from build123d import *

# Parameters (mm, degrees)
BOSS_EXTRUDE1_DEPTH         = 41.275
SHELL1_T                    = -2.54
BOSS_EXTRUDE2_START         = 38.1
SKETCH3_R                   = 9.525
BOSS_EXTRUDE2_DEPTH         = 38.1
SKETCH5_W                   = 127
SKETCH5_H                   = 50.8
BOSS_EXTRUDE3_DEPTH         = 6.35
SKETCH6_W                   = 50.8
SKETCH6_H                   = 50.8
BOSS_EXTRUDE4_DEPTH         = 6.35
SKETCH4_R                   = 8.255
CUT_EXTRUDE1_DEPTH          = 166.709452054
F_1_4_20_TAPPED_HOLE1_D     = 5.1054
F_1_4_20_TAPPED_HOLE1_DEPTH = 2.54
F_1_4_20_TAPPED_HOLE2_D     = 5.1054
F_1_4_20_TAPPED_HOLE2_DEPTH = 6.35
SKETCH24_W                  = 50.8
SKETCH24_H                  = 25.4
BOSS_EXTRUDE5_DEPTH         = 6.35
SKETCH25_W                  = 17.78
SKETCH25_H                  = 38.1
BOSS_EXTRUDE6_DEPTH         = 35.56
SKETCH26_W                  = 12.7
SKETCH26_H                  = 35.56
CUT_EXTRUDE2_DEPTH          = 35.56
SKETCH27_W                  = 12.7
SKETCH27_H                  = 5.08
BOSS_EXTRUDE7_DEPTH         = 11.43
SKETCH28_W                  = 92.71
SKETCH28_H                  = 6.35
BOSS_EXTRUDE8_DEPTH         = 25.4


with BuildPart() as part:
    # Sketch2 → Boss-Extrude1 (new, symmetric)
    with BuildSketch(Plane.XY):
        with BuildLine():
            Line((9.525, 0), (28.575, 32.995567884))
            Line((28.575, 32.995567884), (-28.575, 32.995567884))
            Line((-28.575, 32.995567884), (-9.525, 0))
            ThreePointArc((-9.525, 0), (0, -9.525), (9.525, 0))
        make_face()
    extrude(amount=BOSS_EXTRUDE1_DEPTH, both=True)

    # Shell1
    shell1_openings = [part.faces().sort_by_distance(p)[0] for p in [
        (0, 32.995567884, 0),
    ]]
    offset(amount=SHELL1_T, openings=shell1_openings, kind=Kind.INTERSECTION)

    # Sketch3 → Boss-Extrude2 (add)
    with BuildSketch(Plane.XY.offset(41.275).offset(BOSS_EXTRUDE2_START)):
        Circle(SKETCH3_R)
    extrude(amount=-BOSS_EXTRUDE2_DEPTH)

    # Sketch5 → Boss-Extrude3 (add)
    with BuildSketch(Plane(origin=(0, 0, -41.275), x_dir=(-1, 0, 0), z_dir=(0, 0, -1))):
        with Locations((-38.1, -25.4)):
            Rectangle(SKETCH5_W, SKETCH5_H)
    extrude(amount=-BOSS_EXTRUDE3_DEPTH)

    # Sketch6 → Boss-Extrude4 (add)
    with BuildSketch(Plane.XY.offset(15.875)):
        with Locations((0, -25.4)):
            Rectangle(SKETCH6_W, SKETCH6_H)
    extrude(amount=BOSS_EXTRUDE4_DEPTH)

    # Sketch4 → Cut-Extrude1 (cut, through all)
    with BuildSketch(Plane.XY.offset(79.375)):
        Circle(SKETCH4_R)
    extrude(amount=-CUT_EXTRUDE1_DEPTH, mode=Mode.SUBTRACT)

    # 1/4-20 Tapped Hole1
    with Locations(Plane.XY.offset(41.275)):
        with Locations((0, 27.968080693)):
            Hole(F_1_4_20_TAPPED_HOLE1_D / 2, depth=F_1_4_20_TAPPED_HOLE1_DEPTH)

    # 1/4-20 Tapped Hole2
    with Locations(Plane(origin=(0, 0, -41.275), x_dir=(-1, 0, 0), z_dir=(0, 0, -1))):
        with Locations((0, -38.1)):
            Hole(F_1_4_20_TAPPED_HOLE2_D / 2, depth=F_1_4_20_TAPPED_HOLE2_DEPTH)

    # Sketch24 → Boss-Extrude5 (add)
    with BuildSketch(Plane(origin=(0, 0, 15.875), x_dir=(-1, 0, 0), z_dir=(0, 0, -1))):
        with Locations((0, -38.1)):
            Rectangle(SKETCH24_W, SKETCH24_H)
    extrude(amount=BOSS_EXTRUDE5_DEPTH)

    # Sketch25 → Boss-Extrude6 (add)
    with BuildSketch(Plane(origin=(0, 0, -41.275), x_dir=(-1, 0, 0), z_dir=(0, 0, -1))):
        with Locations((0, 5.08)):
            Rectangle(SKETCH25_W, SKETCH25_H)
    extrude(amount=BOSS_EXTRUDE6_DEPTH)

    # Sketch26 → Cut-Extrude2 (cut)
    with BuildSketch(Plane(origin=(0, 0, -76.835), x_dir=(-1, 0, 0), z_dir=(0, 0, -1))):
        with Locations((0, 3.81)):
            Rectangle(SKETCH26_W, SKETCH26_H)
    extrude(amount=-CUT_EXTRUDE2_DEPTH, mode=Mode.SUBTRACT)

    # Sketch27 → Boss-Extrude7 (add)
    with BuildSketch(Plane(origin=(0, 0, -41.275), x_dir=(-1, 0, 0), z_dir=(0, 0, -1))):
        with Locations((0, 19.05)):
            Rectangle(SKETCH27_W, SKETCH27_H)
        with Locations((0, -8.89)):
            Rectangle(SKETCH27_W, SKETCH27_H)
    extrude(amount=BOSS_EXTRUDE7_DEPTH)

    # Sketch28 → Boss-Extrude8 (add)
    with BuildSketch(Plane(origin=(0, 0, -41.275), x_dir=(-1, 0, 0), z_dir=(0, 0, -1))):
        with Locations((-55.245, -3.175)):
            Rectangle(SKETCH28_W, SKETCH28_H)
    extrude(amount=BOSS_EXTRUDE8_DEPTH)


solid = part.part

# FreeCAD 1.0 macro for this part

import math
import FreeCAD as App
import Part
import Sketcher
Q = App.Units.Quantity


def faces_at(feature, points):
    """Names of the faces that lie closest to the given points."""
    faces = feature.Shape.Faces
    near = lambda p: min(range(len(faces)), key=lambda i: faces[i].distToShape(Part.Vertex(*p))[0])
    return sorted({f"Face{near(p) + 1}" for p in points})


def add_polygon(sketch, points):
    """Adds a closed chain of lines whose ends are joined by coincident constraints."""
    first, n = sketch.GeometryCount, len(points)
    for a, b in zip(points, points[1:] + points[:1]):
        sketch.addGeometry(Part.LineSegment(App.Vector(*a, 0), App.Vector(*b, 0)), False)
    for i in range(n):
        sketch.addConstraint(Sketcher.Constraint("Coincident", first + i, 2, first + (i + 1) % n, 1))

doc = App.newDocument("Part")
body = doc.addObject("PartDesign::Body", "Body")

# Sketch on XY plane
sketch1 = body.newObject("Sketcher::SketchObject", "Sketch")
sketch1.AttachmentSupport = (doc.getObject("XY_Plane"), [""])
sketch1.MapMode = "FlatFace"
sketch1.addGeometry(Part.LineSegment(App.Vector(9.525, 0, 0), App.Vector(28.575, 32.995568, 0)), False)
sketch1.addGeometry(Part.LineSegment(App.Vector(28.575, 32.995568, 0), App.Vector(-28.575, 32.995568, 0)), False)
sketch1.addGeometry(Part.LineSegment(App.Vector(-28.575, 32.995568, 0), App.Vector(-9.525, 0, 0)), False)
sketch1.addGeometry(Part.ArcOfCircle(Part.Circle(App.Vector(0, 0, 0), App.Vector(0, 0, 1), 9.525), math.radians(180), math.radians(360)), False)
sketch1.addConstraint(Sketcher.Constraint("Coincident", 0, 2, 1, 1))
sketch1.addConstraint(Sketcher.Constraint("Coincident", 1, 2, 2, 1))
sketch1.addConstraint(Sketcher.Constraint("Coincident", 2, 2, 3, 1))
sketch1.addConstraint(Sketcher.Constraint("Coincident", 3, 2, 0, 1))
sketch1.addConstraint(Sketcher.Constraint("Horizontal", 1))
sketch1.addConstraint(Sketcher.Constraint("Coincident", 3, 3, -1, 1))
sketch1.addConstraint(Sketcher.Constraint("PointOnObject", 2, 2, -1))
sketch1.addConstraint(Sketcher.Constraint("PointOnObject", 3, 2, -1))
sketch1.addConstraint(Sketcher.Constraint("Equal", 0, 2))
sketch1.addConstraint(Sketcher.Constraint("Angle", 0, Q("60 deg")))
sketch1.addConstraint(Sketcher.Constraint("Radius", 3, Q("0.375 in")))
sketch1.addConstraint(Sketcher.Constraint("Distance", 0, Q("1.5 in")))
pad1 = body.newObject("PartDesign::Pad", "Pad")
pad1.Profile = sketch1
pad1.Length = Q("3.25 in")
pad1.Midplane = True
doc.recompute()

thickness = body.newObject("PartDesign::Thickness", "Thickness")
thickness.Base = (pad1, faces_at(pad1, [(0, 32.996, 0)]))
thickness.Value = Q("0.1 in")
thickness.Reversed = True
thickness.Join = "Intersection"

# Sketch on XY plane
sketch2 = body.newObject("Sketcher::SketchObject", "Sketch001")
sketch2.AttachmentSupport = (doc.getObject("XY_Plane"), [""])
sketch2.MapMode = "FlatFace"
sketch2.AttachmentOffset = App.Placement(App.Vector(0, 0, 3.125 * 25.4), App.Rotation())
sketch2.addGeometry(Part.Circle(App.Vector(0, 0, 0), App.Vector(0, 0, 1), 9.525), False)
sketch2.addConstraint(Sketcher.Constraint("Coincident", 0, 3, -1, 1))
sketch2.addConstraint(Sketcher.Constraint("Diameter", 0, Q("0.75 in")))
pad2 = body.newObject("PartDesign::Pad", "Pad001")
pad2.Profile = sketch2
pad2.Length = Q("1.5 in")
pad2.Reversed = True

# Sketch on XY plane
sketch3 = body.newObject("Sketcher::SketchObject", "Sketch002")
sketch3.AttachmentSupport = (doc.getObject("XY_Plane"), [""])
sketch3.MapMode = "FlatFace"
sketch3.AttachmentOffset = App.Placement(App.Vector(0, 0, -1.625 * 25.4), App.Rotation())
add_polygon(sketch3, [(101.6, 0), (101.6, -50.8), (-25.4, -50.8), (-25.4, 0)])  # lines 0-3
sketch3.addConstraint(Sketcher.Constraint("Vertical", 0))
sketch3.addConstraint(Sketcher.Constraint("Horizontal", 1))
sketch3.addConstraint(Sketcher.Constraint("Vertical", 2))
sketch3.addConstraint(Sketcher.Constraint("Horizontal", 3))
sketch3.addConstraint(Sketcher.Constraint("PointOnObject", 2, 2, -1))
sketch3.addConstraint(Sketcher.Constraint("DistanceX", 1, 2, 1, 1, Q("5 in")))
sketch3.addConstraint(Sketcher.Constraint("DistanceY", 0, 2, 0, 1, Q("2 in")))
sketch3.addConstraint(Sketcher.Constraint("DistanceX", -1, 1, 0, 2, Q("4 in")))
pad3 = body.newObject("PartDesign::Pad", "Pad002")
pad3.Profile = sketch3
pad3.Length = Q("0.25 in")

# Sketch on XY plane
sketch4 = body.newObject("Sketcher::SketchObject", "Sketch003")
sketch4.AttachmentSupport = (doc.getObject("XY_Plane"), [""])
sketch4.MapMode = "FlatFace"
sketch4.AttachmentOffset = App.Placement(App.Vector(0, 0, 0.625 * 25.4), App.Rotation())
add_polygon(sketch4, [(-25.4, 0), (-25.4, -50.8), (25.4, -50.8), (25.4, 0)])  # lines 0-3
sketch4.addConstraint(Sketcher.Constraint("Vertical", 0))
sketch4.addConstraint(Sketcher.Constraint("Horizontal", 1))
sketch4.addConstraint(Sketcher.Constraint("Vertical", 2))
sketch4.addConstraint(Sketcher.Constraint("Horizontal", 3))
sketch4.addConstraint(Sketcher.Constraint("Symmetric", 2, 2, 3, 2, -1, 1))
sketch4.addConstraint(Sketcher.Constraint("Equal", 3, 0))
sketch4.addConstraint(Sketcher.Constraint("DistanceX", 1, 1, 1, 2, Q("2 in")))
pad4 = body.newObject("PartDesign::Pad", "Pad003")
pad4.Profile = sketch4
pad4.Length = Q("0.25 in")

# Sketch on XY plane
sketch5 = body.newObject("Sketcher::SketchObject", "Sketch004")
sketch5.AttachmentSupport = (doc.getObject("XY_Plane"), [""])
sketch5.MapMode = "FlatFace"
sketch5.AttachmentOffset = App.Placement(App.Vector(0, 0, 3.125 * 25.4), App.Rotation())
sketch5.addGeometry(Part.Circle(App.Vector(0, 0, 0), App.Vector(0, 0, 1), 8.255), False)
sketch5.addConstraint(Sketcher.Constraint("Coincident", 0, 3, -1, 1))
sketch5.addConstraint(Sketcher.Constraint("Diameter", 0, Q("0.65 in")))
pocket1 = body.newObject("PartDesign::Pocket", "Pocket")
pocket1.Profile = sketch5
pocket1.Type = "ThroughAll"

# Sketch on XY plane
sketch6 = body.newObject("Sketcher::SketchObject", "Sketch005")
sketch6.AttachmentSupport = (doc.getObject("XY_Plane"), [""])
sketch6.MapMode = "FlatFace"
sketch6.AttachmentOffset = App.Placement(App.Vector(0, 0, 1.625 * 25.4), App.Rotation())
sketch6.addGeometry(Part.Circle(App.Vector(0, 27.968081, 0), App.Vector(0, 0, 1), 2.5527), False)
sketch6.addConstraint(Sketcher.Constraint("PointOnObject", 0, 3, -2))
sketch6.addConstraint(Sketcher.Constraint("Diameter", 0, Q("0.201 in")))
sketch6.addConstraint(Sketcher.Constraint("DistanceY", -1, 1, 0, 3, 27.968081))
doc.recompute()
hole = body.newObject("PartDesign::Hole", "Hole")
hole.Profile = sketch6
hole.ThreadType = "None"
hole.Diameter = Q("0.201 in")
hole.DepthType = "Dimension"
hole.Depth = Q("0.1 in")
hole.DrillPoint = "Flat"

# Sketch on XY plane
sketch7 = body.newObject("Sketcher::SketchObject", "Sketch006")
sketch7.AttachmentSupport = (doc.getObject("XY_Plane"), [""])
sketch7.MapMode = "FlatFace"
sketch7.AttachmentOffset = App.Placement(App.Vector(0, 0, -1.625 * 25.4), App.Rotation())
sketch7.addGeometry(Part.Circle(App.Vector(0, -38.1, 0), App.Vector(0, 0, 1), 2.5527), False)
sketch7.addConstraint(Sketcher.Constraint("PointOnObject", 0, 3, -2))
sketch7.addConstraint(Sketcher.Constraint("Diameter", 0, Q("0.201 in")))
sketch7.addConstraint(Sketcher.Constraint("DistanceY", 0, 3, -1, 1, Q("1.5 in")))
doc.recompute()
hole2 = body.newObject("PartDesign::Hole", "Hole001")
hole2.Profile = sketch7
hole2.ThreadType = "None"
hole2.Diameter = Q("0.201 in")
hole2.DepthType = "Dimension"
hole2.Depth = Q("0.25 in")
hole2.DrillPoint = "Flat"
hole2.Reversed = True

# Sketch on XY plane
sketch8 = body.newObject("Sketcher::SketchObject", "Sketch007")
sketch8.AttachmentSupport = (doc.getObject("XY_Plane"), [""])
sketch8.MapMode = "FlatFace"
sketch8.AttachmentOffset = App.Placement(App.Vector(0, 0, 0.625 * 25.4), App.Rotation())
add_polygon(sketch8, [(25.4, -25.4), (25.4, -50.8), (-25.4, -50.8), (-25.4, -25.4)])  # lines 0-3
sketch8.addConstraint(Sketcher.Constraint("Vertical", 0))
sketch8.addConstraint(Sketcher.Constraint("Horizontal", 1))
sketch8.addConstraint(Sketcher.Constraint("Vertical", 2))
sketch8.addConstraint(Sketcher.Constraint("Horizontal", 3))
sketch8.addConstraint(Sketcher.Constraint("DistanceX", 1, 2, 1, 1, Q("2 in")))
sketch8.addConstraint(Sketcher.Constraint("DistanceY", 0, 2, 0, 1, Q("1 in")))
sketch8.addConstraint(Sketcher.Constraint("DistanceX", -1, 1, 0, 2, Q("1 in")))
sketch8.addConstraint(Sketcher.Constraint("DistanceY", 0, 2, -1, 1, Q("2 in")))
pad5 = body.newObject("PartDesign::Pad", "Pad004")
pad5.Profile = sketch8
pad5.Length = Q("0.25 in")
pad5.Reversed = True

# Sketch on XY plane
sketch9 = body.newObject("Sketcher::SketchObject", "Sketch008")
sketch9.AttachmentSupport = (doc.getObject("XY_Plane"), [""])
sketch9.MapMode = "FlatFace"
sketch9.AttachmentOffset = App.Placement(App.Vector(0, 0, -1.625 * 25.4), App.Rotation())
add_polygon(sketch9, [(8.89, 24.13), (8.89, -13.97), (-8.89, -13.97), (-8.89, 24.13)])  # lines 0-3
sketch9.addConstraint(Sketcher.Constraint("Vertical", 0))
sketch9.addConstraint(Sketcher.Constraint("Horizontal", 1))
sketch9.addConstraint(Sketcher.Constraint("Vertical", 2))
sketch9.addConstraint(Sketcher.Constraint("Horizontal", 3))
sketch9.addConstraint(Sketcher.Constraint("DistanceX", 1, 2, 1, 1, Q("0.7 in")))
sketch9.addConstraint(Sketcher.Constraint("DistanceY", 0, 2, 0, 1, Q("1.5 in")))
sketch9.addConstraint(Sketcher.Constraint("DistanceX", -1, 1, 0, 2, Q("0.35 in")))
sketch9.addConstraint(Sketcher.Constraint("DistanceY", 0, 2, -1, 1, Q("0.55 in")))
pad6 = body.newObject("PartDesign::Pad", "Pad005")
pad6.Profile = sketch9
pad6.Length = Q("1.4 in")
pad6.Reversed = True

# Sketch on XY plane
sketch10 = body.newObject("Sketcher::SketchObject", "Sketch009")
sketch10.AttachmentSupport = (doc.getObject("XY_Plane"), [""])
sketch10.MapMode = "FlatFace"
sketch10.AttachmentOffset = App.Placement(App.Vector(0, 0, -3.025 * 25.4), App.Rotation())
add_polygon(sketch10, [(6.35, 21.59), (6.35, -13.97), (-6.35, -13.97), (-6.35, 21.59)])  # lines 0-3
sketch10.addConstraint(Sketcher.Constraint("Vertical", 0))
sketch10.addConstraint(Sketcher.Constraint("Horizontal", 1))
sketch10.addConstraint(Sketcher.Constraint("Vertical", 2))
sketch10.addConstraint(Sketcher.Constraint("Horizontal", 3))
sketch10.addConstraint(Sketcher.Constraint("DistanceX", 1, 2, 1, 1, Q("0.5 in")))
sketch10.addConstraint(Sketcher.Constraint("DistanceY", 0, 2, 0, 1, Q("1.4 in")))
sketch10.addConstraint(Sketcher.Constraint("DistanceX", -1, 1, 0, 2, Q("0.25 in")))
sketch10.addConstraint(Sketcher.Constraint("DistanceY", 0, 2, -1, 1, Q("0.55 in")))
pocket2 = body.newObject("PartDesign::Pocket", "Pocket001")
pocket2.Profile = sketch10
pocket2.Length = Q("1.4 in")
pocket2.Reversed = True

# Sketch on XY plane
sketch11 = body.newObject("Sketcher::SketchObject", "Sketch010")
sketch11.AttachmentSupport = (doc.getObject("XY_Plane"), [""])
sketch11.MapMode = "FlatFace"
sketch11.AttachmentOffset = App.Placement(App.Vector(0, 0, -1.625 * 25.4), App.Rotation())
add_polygon(sketch11, [(6.35, 21.59), (6.35, 16.51), (-6.35, 16.51), (-6.35, 21.59)])  # lines 0-3
add_polygon(sketch11, [(6.35, -6.35), (6.35, -11.43), (-6.35, -11.43), (-6.35, -6.35)])  # lines 4-7
sketch11.addConstraint(Sketcher.Constraint("Vertical", 0))
sketch11.addConstraint(Sketcher.Constraint("Horizontal", 1))
sketch11.addConstraint(Sketcher.Constraint("Vertical", 2))
sketch11.addConstraint(Sketcher.Constraint("Horizontal", 3))
sketch11.addConstraint(Sketcher.Constraint("Vertical", 4))
sketch11.addConstraint(Sketcher.Constraint("Horizontal", 5))
sketch11.addConstraint(Sketcher.Constraint("Vertical", 6))
sketch11.addConstraint(Sketcher.Constraint("Horizontal", 7))
sketch11.addConstraint(Sketcher.Constraint("Vertical", 3, 2, 4, 2))
sketch11.addConstraint(Sketcher.Constraint("Vertical", 2, 2, 5, 2))
sketch11.addConstraint(Sketcher.Constraint("Equal", 2, 4))
sketch11.addConstraint(Sketcher.Constraint("DistanceX", 1, 2, 1, 1, Q("0.5 in")))
sketch11.addConstraint(Sketcher.Constraint("DistanceY", 0, 2, 0, 1, Q("0.2 in")))
sketch11.addConstraint(Sketcher.Constraint("DistanceY", 4, 2, 0, 2, Q("1.1 in")))
sketch11.addConstraint(Sketcher.Constraint("DistanceX", -1, 1, 0, 2, Q("0.25 in")))
sketch11.addConstraint(Sketcher.Constraint("DistanceY", -1, 1, 0, 2, Q("0.65 in")))
pad7 = body.newObject("PartDesign::Pad", "Pad006")
pad7.Profile = sketch11
pad7.Length = Q("0.45 in")
pad7.Reversed = True

# Sketch on XY plane
sketch12 = body.newObject("Sketcher::SketchObject", "Sketch011")
sketch12.AttachmentSupport = (doc.getObject("XY_Plane"), [""])
sketch12.MapMode = "FlatFace"
sketch12.AttachmentOffset = App.Placement(App.Vector(0, 0, -1.625 * 25.4), App.Rotation())
add_polygon(sketch12, [(101.6, 0), (101.6, -6.35), (8.89, -6.35), (8.89, 0)])  # lines 0-3
sketch12.addConstraint(Sketcher.Constraint("Vertical", 0))
sketch12.addConstraint(Sketcher.Constraint("Horizontal", 1))
sketch12.addConstraint(Sketcher.Constraint("Vertical", 2))
sketch12.addConstraint(Sketcher.Constraint("Horizontal", 3))
sketch12.addConstraint(Sketcher.Constraint("PointOnObject", 2, 2, -1))
sketch12.addConstraint(Sketcher.Constraint("DistanceX", -1, 1, 0, 2, Q("4 in")))
sketch12.addConstraint(Sketcher.Constraint("DistanceX", 1, 2, 1, 1, Q("3.65 in")))
sketch12.addConstraint(Sketcher.Constraint("DistanceY", 0, 2, 0, 1, Q("0.25 in")))
pad8 = body.newObject("PartDesign::Pad", "Pad007")
pad8.Profile = sketch12
pad8.Length = Q("1 in")
pad8.Reversed = True

doc.recompute()
